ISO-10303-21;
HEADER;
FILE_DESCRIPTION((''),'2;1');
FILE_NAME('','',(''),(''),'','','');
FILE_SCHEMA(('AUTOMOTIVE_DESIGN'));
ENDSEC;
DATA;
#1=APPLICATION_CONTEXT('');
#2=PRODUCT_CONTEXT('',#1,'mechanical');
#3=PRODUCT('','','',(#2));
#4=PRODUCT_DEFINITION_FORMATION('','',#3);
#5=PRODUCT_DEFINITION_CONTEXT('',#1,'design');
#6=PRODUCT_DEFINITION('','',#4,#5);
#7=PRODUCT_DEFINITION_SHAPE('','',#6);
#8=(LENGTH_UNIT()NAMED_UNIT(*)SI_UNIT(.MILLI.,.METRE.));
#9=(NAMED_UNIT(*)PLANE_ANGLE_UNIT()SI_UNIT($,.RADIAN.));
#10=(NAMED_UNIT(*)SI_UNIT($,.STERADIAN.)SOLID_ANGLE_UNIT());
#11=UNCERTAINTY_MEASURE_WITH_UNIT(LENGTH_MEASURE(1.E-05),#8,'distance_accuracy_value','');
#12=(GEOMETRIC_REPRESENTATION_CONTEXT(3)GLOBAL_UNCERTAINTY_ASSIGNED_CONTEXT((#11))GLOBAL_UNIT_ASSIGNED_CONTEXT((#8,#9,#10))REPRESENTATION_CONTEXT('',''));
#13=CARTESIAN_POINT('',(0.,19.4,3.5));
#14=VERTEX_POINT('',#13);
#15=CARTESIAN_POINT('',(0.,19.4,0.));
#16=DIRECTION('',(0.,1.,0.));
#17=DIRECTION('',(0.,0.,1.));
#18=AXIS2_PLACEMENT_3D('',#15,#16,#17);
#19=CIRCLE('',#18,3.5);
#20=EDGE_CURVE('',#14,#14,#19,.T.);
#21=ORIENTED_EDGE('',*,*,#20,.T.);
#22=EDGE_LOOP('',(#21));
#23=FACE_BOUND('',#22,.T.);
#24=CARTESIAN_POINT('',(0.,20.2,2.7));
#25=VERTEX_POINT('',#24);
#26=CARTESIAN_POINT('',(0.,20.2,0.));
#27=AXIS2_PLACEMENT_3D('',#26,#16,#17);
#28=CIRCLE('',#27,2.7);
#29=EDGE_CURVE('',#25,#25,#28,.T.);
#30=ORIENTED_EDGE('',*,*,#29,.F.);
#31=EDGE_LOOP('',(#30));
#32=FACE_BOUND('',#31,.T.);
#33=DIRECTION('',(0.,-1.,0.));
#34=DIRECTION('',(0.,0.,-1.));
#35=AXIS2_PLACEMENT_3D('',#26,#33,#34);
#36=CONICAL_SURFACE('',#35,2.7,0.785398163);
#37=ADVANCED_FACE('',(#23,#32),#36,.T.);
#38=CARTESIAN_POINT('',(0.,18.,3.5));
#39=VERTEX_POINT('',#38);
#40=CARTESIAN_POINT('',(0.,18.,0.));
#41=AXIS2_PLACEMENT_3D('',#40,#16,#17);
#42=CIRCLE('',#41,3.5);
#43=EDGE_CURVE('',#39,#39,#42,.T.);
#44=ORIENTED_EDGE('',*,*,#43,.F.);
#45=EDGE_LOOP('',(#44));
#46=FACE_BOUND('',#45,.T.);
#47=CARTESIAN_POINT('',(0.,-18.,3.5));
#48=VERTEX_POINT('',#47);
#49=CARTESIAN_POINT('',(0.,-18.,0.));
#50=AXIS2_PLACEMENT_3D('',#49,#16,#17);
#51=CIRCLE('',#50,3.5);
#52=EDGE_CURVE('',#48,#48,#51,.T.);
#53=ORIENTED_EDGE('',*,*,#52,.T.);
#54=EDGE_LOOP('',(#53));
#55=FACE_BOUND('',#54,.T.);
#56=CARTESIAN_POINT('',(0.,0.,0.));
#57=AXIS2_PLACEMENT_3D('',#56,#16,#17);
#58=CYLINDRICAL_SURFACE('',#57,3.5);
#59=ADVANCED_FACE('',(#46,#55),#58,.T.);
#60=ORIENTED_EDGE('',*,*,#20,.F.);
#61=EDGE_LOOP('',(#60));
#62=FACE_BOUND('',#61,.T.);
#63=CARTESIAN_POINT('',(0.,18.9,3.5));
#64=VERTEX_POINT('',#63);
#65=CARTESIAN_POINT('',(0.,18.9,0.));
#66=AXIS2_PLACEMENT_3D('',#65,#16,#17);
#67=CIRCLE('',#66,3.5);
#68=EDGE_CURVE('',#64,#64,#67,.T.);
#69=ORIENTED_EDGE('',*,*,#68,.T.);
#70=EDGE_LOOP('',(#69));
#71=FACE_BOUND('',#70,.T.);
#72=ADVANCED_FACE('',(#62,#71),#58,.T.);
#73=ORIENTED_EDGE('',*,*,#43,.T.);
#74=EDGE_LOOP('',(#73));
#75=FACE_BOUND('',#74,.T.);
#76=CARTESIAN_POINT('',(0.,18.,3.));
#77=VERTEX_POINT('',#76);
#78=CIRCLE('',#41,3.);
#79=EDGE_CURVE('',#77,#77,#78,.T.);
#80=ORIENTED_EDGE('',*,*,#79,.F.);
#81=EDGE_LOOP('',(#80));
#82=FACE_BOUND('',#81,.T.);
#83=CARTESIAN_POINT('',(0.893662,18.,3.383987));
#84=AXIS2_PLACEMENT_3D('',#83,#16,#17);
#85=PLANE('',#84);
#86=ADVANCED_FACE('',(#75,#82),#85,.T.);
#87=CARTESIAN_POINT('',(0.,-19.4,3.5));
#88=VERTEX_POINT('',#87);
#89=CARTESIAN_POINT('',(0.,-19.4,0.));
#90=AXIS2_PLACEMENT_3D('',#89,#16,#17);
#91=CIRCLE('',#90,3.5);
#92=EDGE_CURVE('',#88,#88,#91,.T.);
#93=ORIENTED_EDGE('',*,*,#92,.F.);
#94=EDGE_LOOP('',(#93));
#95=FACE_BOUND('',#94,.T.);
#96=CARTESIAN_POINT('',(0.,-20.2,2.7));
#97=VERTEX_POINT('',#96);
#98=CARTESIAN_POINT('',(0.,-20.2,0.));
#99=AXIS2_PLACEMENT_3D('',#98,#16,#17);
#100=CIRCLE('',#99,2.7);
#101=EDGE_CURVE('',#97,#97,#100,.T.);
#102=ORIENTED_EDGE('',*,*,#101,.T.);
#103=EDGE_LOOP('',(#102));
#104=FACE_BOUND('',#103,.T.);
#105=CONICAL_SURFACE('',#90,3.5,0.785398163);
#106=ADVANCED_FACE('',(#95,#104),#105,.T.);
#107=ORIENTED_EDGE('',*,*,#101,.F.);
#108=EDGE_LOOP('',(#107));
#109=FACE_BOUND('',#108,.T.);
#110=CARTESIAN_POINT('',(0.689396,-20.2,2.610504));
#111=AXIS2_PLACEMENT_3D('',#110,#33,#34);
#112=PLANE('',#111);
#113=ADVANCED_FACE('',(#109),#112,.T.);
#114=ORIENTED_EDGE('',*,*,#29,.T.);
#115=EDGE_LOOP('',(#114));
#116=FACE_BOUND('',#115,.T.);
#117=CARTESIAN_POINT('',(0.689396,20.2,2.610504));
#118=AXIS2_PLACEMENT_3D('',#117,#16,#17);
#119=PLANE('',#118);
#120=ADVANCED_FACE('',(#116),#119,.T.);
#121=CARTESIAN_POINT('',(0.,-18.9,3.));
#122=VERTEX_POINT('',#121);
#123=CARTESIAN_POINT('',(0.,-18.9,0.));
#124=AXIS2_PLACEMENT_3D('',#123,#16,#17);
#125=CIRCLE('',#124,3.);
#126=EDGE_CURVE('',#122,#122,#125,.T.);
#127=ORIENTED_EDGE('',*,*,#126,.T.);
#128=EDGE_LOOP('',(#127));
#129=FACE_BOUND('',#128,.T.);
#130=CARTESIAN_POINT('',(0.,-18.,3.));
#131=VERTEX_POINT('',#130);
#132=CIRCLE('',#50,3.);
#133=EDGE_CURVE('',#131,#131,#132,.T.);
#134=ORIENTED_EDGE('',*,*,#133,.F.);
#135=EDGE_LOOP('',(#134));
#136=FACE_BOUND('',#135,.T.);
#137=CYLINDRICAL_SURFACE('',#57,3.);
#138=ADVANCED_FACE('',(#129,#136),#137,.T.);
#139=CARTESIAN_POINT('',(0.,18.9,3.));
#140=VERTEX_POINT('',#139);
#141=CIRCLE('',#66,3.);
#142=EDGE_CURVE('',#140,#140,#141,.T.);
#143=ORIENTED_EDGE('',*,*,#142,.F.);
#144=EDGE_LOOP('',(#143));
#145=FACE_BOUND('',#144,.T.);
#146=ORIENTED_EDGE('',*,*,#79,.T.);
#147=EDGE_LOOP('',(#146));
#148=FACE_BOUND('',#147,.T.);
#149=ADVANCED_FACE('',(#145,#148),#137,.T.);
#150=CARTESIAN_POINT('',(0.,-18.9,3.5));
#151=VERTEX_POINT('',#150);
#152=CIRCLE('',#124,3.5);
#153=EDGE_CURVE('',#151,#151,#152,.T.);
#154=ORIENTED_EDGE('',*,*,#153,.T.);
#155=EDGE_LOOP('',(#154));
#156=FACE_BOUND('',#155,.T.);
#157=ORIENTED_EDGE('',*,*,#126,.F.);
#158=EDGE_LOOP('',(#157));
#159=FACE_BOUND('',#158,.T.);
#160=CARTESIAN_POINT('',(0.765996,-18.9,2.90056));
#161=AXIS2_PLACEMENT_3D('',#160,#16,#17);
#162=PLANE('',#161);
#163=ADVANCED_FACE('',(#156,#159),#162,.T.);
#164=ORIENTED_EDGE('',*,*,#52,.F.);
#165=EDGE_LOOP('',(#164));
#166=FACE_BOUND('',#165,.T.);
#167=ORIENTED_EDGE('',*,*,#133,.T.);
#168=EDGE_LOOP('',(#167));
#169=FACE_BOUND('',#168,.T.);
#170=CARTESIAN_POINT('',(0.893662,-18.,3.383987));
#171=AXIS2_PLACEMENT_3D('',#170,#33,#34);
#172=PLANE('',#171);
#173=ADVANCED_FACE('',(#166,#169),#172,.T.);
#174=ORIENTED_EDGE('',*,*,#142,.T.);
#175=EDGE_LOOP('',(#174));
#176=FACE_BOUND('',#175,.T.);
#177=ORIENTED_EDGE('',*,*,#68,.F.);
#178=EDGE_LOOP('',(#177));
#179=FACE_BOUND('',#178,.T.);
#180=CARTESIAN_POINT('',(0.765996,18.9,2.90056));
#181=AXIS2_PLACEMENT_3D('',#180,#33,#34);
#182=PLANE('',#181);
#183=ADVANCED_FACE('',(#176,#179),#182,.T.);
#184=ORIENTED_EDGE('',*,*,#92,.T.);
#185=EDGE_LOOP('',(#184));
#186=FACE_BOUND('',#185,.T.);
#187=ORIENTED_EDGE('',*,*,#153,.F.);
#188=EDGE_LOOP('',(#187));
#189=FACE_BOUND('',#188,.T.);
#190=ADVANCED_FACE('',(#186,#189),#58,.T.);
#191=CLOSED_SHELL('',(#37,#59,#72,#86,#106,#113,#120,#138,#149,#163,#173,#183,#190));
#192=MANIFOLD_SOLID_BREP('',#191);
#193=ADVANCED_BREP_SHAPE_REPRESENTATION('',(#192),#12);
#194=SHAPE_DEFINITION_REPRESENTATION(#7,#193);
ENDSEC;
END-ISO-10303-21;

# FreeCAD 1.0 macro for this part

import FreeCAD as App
import Part
import Sketcher

doc = App.newDocument("Part")
body = doc.addObject("PartDesign::Body", "Body")

sketch1 = doc.addObject("Sketcher::SketchObject", "Sketch")
body.addObject(sketch1)
sketch1.Placement = App.Placement(App.Vector(0, 0, 0), App.Rotation(App.Vector(-0.255332003, 0, -0.966853437), App.Vector(0, 1, 0), App.Vector(0.966853437, 0, -0.255332003), "ZXY"))
sketch1.addGeometry(Part.LineSegment(App.Vector(-3.5, 18, 0), App.Vector(-3.5, -18, 0)), False)
sketch1.addGeometry(Part.LineSegment(App.Vector(-3.5, -18, 0), App.Vector(-3, -18, 0)), False)
sketch1.addGeometry(Part.LineSegment(App.Vector(-3, -18, 0), App.Vector(-3, -18.9, 0)), False)
sketch1.addGeometry(Part.LineSegment(App.Vector(-3, -18.9, 0), App.Vector(-3.5, -18.9, 0)), False)
sketch1.addGeometry(Part.LineSegment(App.Vector(-3.5, -18.9, 0), App.Vector(-3.5, -19.4, 0)), False)
sketch1.addGeometry(Part.LineSegment(App.Vector(-3.5, -19.4, 0), App.Vector(-2.7, -20.2, 0)), False)
sketch1.addGeometry(Part.LineSegment(App.Vector(-2.7, -20.2, 0), App.Vector(0, -20.2, 0)), False)
sketch1.addGeometry(Part.LineSegment(App.Vector(0, -20.2, 0), App.Vector(0, 20.2, 0)), False)
sketch1.addGeometry(Part.LineSegment(App.Vector(0, 20.2, 0), App.Vector(-2.7, 20.2, 0)), False)
sketch1.addGeometry(Part.LineSegment(App.Vector(-2.7, 20.2, 0), App.Vector(-3.5, 19.4, 0)), False)
sketch1.addGeometry(Part.LineSegment(App.Vector(-3.5, 19.4, 0), App.Vector(-3.5, 18.9, 0)), False)
sketch1.addGeometry(Part.LineSegment(App.Vector(-3.5, 18.9, 0), App.Vector(-3, 18.9, 0)), False)
sketch1.addGeometry(Part.LineSegment(App.Vector(-3, 18.9, 0), App.Vector(-3, 18, 0)), False)
sketch1.addGeometry(Part.LineSegment(App.Vector(-3, 18, 0), App.Vector(-3.5, 18, 0)), False)
sketch1.addConstraint(Sketcher.Constraint("Coincident", 0, 2, 1, 1))
sketch1.addConstraint(Sketcher.Constraint("Coincident", 1, 2, 2, 1))
sketch1.addConstraint(Sketcher.Constraint("Coincident", 2, 2, 3, 1))
sketch1.addConstraint(Sketcher.Constraint("Coincident", 3, 2, 4, 1))
sketch1.addConstraint(Sketcher.Constraint("Coincident", 4, 2, 5, 1))
sketch1.addConstraint(Sketcher.Constraint("Coincident", 5, 2, 6, 1))
sketch1.addConstraint(Sketcher.Constraint("Coincident", 6, 2, 7, 1))
sketch1.addConstraint(Sketcher.Constraint("Coincident", 7, 2, 8, 1))
sketch1.addConstraint(Sketcher.Constraint("Coincident", 8, 2, 9, 1))
sketch1.addConstraint(Sketcher.Constraint("Coincident", 9, 2, 10, 1))
sketch1.addConstraint(Sketcher.Constraint("Coincident", 10, 2, 11, 1))
sketch1.addConstraint(Sketcher.Constraint("Coincident", 11, 2, 12, 1))
sketch1.addConstraint(Sketcher.Constraint("Coincident", 12, 2, 13, 1))
sketch1.addConstraint(Sketcher.Constraint("Coincident", 13, 2, 0, 1))
sketch1.addConstraint(Sketcher.Constraint("Vertical", 0))
sketch1.addConstraint(Sketcher.Constraint("Horizontal", 1))
sketch1.addConstraint(Sketcher.Constraint("Vertical", 2))
sketch1.addConstraint(Sketcher.Constraint("Horizontal", 3))
sketch1.addConstraint(Sketcher.Constraint("Vertical", 4))
sketch1.addConstraint(Sketcher.Constraint("Horizontal", 6))
sketch1.addConstraint(Sketcher.Constraint("Vertical", 7))
sketch1.addConstraint(Sketcher.Constraint("Horizontal", 8))
sketch1.addConstraint(Sketcher.Constraint("Vertical", 10))
sketch1.addConstraint(Sketcher.Constraint("Horizontal", 11))
sketch1.addConstraint(Sketcher.Constraint("Vertical", 12))
sketch1.addConstraint(Sketcher.Constraint("Horizontal", 13))
sketch1.addConstraint(Sketcher.Constraint("Symmetric", 6, 2, 7, 2, -1, 1))
sketch1.addConstraint(Sketcher.Constraint("Symmetric", 4, 2, 9, 2, -1))
sketch1.addConstraint(Sketcher.Constraint("Symmetric", 2, 2, 11, 2, -1))
sketch1.addConstraint(Sketcher.Constraint("Perpendicular", 5, 9))
sketch1.addConstraint(Sketcher.Constraint("Vertical", 0, 2, 3, 2))
sketch1.addConstraint(Sketcher.Constraint("Vertical", 5, 2, 8, 2))
sketch1.addConstraint(Sketcher.Constraint("Equal", 13, 4))
sketch1.addConstraint(Sketcher.Constraint("Equal", 2, 12))
sketch1.addConstraint(Sketcher.Constraint("DistanceY", 0, 2, 0, 1, 36.0))
sketch1.addConstraint(Sketcher.Constraint("DistanceX", 1, 1, 1, 2, 0.5))
sketch1.addConstraint(Sketcher.Constraint("DistanceX", 6, 1, 6, 2, 2.7))
sketch1.addConstraint(Sketcher.Constraint("DistanceY", 2, 2, 2, 1, 0.9))
sketch1.addConstraint(Sketcher.Constraint("DistanceY", 7, 1, 7, 2, 40.4))
revolution = doc.addObject("PartDesign::Revolution", "Revolution")
body.addObject(revolution)
revolution.Profile = sketch1
revolution.ReferenceAxis = (sketch1, ["V_Axis"])
revolution.Angle = 360

doc.recompute()
